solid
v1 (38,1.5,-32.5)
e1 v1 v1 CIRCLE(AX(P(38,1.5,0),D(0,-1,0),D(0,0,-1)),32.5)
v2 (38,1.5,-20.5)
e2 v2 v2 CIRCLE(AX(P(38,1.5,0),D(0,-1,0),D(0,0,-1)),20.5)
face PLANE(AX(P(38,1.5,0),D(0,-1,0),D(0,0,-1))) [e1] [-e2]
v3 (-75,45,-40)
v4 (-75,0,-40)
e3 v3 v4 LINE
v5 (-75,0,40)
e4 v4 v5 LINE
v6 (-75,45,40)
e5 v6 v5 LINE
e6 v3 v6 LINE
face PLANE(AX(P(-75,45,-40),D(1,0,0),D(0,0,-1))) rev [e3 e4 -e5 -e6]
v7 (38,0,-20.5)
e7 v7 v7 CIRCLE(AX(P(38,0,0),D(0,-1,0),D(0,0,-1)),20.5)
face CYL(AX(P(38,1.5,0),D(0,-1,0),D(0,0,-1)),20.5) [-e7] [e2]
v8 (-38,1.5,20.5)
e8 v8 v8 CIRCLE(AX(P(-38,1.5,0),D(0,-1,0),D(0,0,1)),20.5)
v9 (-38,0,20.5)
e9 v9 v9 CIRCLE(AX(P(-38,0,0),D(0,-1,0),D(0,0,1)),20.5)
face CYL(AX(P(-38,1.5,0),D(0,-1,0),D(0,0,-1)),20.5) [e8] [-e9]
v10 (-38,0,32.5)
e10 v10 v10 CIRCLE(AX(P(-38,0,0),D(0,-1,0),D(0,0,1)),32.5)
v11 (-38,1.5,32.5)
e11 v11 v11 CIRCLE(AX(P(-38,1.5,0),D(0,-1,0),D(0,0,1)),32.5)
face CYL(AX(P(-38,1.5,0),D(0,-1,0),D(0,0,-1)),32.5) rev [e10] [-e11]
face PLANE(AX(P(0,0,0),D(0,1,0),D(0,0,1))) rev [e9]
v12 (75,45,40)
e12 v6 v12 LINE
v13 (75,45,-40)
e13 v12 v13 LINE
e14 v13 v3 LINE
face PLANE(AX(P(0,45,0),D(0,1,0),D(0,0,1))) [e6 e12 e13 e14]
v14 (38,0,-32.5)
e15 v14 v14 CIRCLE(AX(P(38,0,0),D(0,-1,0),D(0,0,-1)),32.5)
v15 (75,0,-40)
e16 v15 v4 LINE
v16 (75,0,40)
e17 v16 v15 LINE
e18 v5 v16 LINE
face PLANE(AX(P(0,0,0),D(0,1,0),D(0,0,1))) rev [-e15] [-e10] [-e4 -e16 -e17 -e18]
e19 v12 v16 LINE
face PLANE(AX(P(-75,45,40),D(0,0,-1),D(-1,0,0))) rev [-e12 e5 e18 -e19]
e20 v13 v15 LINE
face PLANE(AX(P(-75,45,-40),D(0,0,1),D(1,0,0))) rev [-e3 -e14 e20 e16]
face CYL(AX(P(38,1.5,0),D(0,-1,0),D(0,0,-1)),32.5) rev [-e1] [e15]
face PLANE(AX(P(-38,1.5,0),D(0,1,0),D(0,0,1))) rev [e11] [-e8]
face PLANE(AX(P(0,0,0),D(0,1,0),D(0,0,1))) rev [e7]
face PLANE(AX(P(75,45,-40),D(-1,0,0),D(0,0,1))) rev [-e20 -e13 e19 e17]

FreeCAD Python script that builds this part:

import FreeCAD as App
import Part
import Sketcher

V = App.Vector
Q = App.Units.Quantity

doc = App.newDocument("Part")
params = doc.addObject("Spreadsheet::Sheet", "Params")
for row, (alias, value) in enumerate([
    ("sketch1_width", "150 mm"),
    ("sketch1_height", "80 mm"),
    ("pad1_length", "45 mm"),
    ("sketch2_diameter", "65 mm"),
    ("sketch2_diameter2", "41 mm"),
    ("pocket1_length", "1.5 mm"),
], start=1):
    params.set(f"A{row}", alias)
    params.set(f"B{row}", "=" + value)
    params.setAlias(f"B{row}", alias)

body = doc.addObject("PartDesign::Body", "Body")

# Sketch on XZ plane
sketch1 = body.newObject("Sketcher::SketchObject", "Sketch")
sketch1.AttachmentSupport = (doc.getObject("XZ_Plane"), [""])
sketch1.MapMode = "FlatFace"
sketch1.addGeometry([
    Part.LineSegment(V(-75, -40, 0), V(-75, 40, 0)),
    Part.LineSegment(V(-75, 40, 0), V(75, 40, 0)),
    Part.LineSegment(V(75, 40, 0), V(75, -40, 0)),
    Part.LineSegment(V(75, -40, 0), V(-75, -40, 0)),
], False)
sketch1.addConstraint([
    Sketcher.Constraint("Coincident", 0, 2, 1, 1),
    Sketcher.Constraint("Coincident", 1, 2, 2, 1),
    Sketcher.Constraint("Coincident", 2, 2, 3, 1),
    Sketcher.Constraint("Coincident", 3, 2, 0, 1),
    Sketcher.Constraint("Vertical", 0),
    Sketcher.Constraint("Horizontal", 1),
    Sketcher.Constraint("Vertical", 2),
    Sketcher.Constraint("Horizontal", 3),
    Sketcher.Constraint("Symmetric", 0, 2, 2, 2, -1, 1),
    Sketcher.Constraint("DistanceX", 1, 1, 1, 2, Q("150 mm")),
    Sketcher.Constraint("DistanceY", 0, 1, 0, 2, Q("80 mm")),
])
sketch1.setExpression("Constraints[9]", "Params.sketch1_width")
sketch1.setExpression("Constraints[10]", "Params.sketch1_height")
pad1 = body.newObject("PartDesign::Pad", "Pad")
pad1.Profile = sketch1
pad1.setExpression("Length", "Params.pad1_length")
pad1.Reversed = True

# Sketch on XZ plane
sketch2 = body.newObject("Sketcher::SketchObject", "Sketch001")
sketch2.AttachmentSupport = (doc.getObject("XZ_Plane"), [""])
sketch2.MapMode = "FlatFace"
sketch2.addGeometry([
    Part.Circle(V(38, 0, 0), V(0, 0, 1), 32.5),
    Part.Circle(V(38, 0, 0), V(0, 0, 1), 20.5),
    Part.Circle(V(-38, 0, 0), V(0, 0, 1), 32.5),
    Part.Circle(V(-38, 0, 0), V(0, 0, 1), 20.5),
], False)
sketch2.addConstraint([
    Sketcher.Constraint("Coincident", 1, 3, 0, 3),
    Sketcher.Constraint("Coincident", 3, 3, 2, 3),
    Sketcher.Constraint("Equal", 0, 2),
    Sketcher.Constraint("Equal", 1, 3),
    Sketcher.Constraint("Symmetric", 0, 3, 2, 3, -1, 1),
    Sketcher.Constraint("PointOnObject", 0, 3, -1),
    Sketcher.Constraint("Diameter", 0, Q("65 mm")),
    Sketcher.Constraint("Diameter", 1, Q("41 mm")),
    Sketcher.Constraint("DistanceX", -1, 1, 0, 3, Q("38 mm")),
])
sketch2.setExpression("Constraints[6]", "Params.sketch2_diameter")
sketch2.setExpression("Constraints[7]", "Params.sketch2_diameter2")
pocket1 = body.newObject("PartDesign::Pocket", "Pocket")
pocket1.Profile = sketch2
pocket1.setExpression("Length", "Params.pocket1_length")

doc.recompute()
